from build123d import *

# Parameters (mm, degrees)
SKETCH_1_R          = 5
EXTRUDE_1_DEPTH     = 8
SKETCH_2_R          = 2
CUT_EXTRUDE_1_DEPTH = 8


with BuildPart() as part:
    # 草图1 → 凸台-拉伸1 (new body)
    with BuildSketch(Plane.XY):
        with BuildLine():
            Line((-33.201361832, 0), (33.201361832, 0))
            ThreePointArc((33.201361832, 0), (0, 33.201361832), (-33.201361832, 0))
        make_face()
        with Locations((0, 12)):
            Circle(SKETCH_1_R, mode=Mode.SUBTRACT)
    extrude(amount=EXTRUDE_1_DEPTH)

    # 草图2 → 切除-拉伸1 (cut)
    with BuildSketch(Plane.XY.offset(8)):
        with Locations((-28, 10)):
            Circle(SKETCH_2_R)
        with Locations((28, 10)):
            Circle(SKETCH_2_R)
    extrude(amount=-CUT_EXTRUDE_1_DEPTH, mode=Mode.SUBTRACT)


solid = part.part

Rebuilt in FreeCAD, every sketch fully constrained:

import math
import FreeCAD as App
import Part
import Sketcher

V = App.Vector
Q = App.Units.Quantity

doc = App.newDocument("Part")
body = doc.addObject("PartDesign::Body", "Body")

# Sketch on XY plane
sketch1 = doc.addObject("Sketcher::SketchObject", "Sketch")
body.addObject(sketch1)
sketch1.AttachmentSupport = (doc.XY_Plane, [""])
sketch1.MapMode = "FlatFace"
sketch1.addGeometry(Part.LineSegment(V(-33.201362, 0, 0), V(33.201362, 0, 0)), False)
sketch1.addGeometry(Part.ArcOfCircle(Part.Circle(V(0, 0, 0), V(0, 0, 1), 33.201362), math.radians(0), math.radians(180)), False)
sketch1.addGeometry(Part.Circle(V(0, 12, 0), V(0, 0, 1), 5), False)
sketch1.addConstraint(Sketcher.Constraint("Coincident", 0, 1, 1, 2))
sketch1.addConstraint(Sketcher.Constraint("Coincident", 1, 1, 0, 2))
sketch1.addConstraint(Sketcher.Constraint("Horizontal", 0))
sketch1.addConstraint(Sketcher.Constraint("Coincident", 1, 3, -1, 1))
sketch1.addConstraint(Sketcher.Constraint("PointOnObject", 2, 3, -2))
sketch1.addConstraint(Sketcher.Constraint("PointOnObject", 0, 1, -1))
sketch1.addConstraint(Sketcher.Constraint("Diameter", 2, Q("10 mm")))
sketch1.addConstraint(Sketcher.Constraint("DistanceY", -1, 1, 2, 3, Q("12 mm")))
sketch1.addConstraint(Sketcher.Constraint("Radius", 1, Q("33.201362 mm")))
pad1 = doc.addObject("PartDesign::Pad", "Pad")
body.addObject(pad1)
pad1.Profile = sketch1
pad1.Length = 8

# Sketch on XY plane
sketch2 = doc.addObject("Sketcher::SketchObject", "Sketch001")
body.addObject(sketch2)
sketch2.AttachmentSupport = (doc.XY_Plane, [""])
sketch2.MapMode = "FlatFace"
sketch2.AttachmentOffset = App.Placement(V(0, 0, 8), App.Rotation())
sketch2.addGeometry(Part.Circle(V(-28, 10, 0), V(0, 0, 1), 2), False)
sketch2.addGeometry(Part.Circle(V(28, 10, 0), V(0, 0, 1), 2), False)
sketch2.addConstraint(Sketcher.Constraint("Equal", 0, 1))
sketch2.addConstraint(Sketcher.Constraint("Symmetric", 0, 3, 1, 3, -2))
sketch2.addConstraint(Sketcher.Constraint("Diameter", 0, Q("4 mm")))
sketch2.addConstraint(Sketcher.Constraint("DistanceX", 0, 3, -1, 1, Q("28 mm")))
sketch2.addConstraint(Sketcher.Constraint("DistanceY", -1, 1, 0, 3, Q("10 mm")))
pocket1 = doc.addObject("PartDesign::Pocket", "Pocket")
body.addObject(pocket1)
pocket1.Profile = sketch2
pocket1.Length = 8

doc.recompute()
